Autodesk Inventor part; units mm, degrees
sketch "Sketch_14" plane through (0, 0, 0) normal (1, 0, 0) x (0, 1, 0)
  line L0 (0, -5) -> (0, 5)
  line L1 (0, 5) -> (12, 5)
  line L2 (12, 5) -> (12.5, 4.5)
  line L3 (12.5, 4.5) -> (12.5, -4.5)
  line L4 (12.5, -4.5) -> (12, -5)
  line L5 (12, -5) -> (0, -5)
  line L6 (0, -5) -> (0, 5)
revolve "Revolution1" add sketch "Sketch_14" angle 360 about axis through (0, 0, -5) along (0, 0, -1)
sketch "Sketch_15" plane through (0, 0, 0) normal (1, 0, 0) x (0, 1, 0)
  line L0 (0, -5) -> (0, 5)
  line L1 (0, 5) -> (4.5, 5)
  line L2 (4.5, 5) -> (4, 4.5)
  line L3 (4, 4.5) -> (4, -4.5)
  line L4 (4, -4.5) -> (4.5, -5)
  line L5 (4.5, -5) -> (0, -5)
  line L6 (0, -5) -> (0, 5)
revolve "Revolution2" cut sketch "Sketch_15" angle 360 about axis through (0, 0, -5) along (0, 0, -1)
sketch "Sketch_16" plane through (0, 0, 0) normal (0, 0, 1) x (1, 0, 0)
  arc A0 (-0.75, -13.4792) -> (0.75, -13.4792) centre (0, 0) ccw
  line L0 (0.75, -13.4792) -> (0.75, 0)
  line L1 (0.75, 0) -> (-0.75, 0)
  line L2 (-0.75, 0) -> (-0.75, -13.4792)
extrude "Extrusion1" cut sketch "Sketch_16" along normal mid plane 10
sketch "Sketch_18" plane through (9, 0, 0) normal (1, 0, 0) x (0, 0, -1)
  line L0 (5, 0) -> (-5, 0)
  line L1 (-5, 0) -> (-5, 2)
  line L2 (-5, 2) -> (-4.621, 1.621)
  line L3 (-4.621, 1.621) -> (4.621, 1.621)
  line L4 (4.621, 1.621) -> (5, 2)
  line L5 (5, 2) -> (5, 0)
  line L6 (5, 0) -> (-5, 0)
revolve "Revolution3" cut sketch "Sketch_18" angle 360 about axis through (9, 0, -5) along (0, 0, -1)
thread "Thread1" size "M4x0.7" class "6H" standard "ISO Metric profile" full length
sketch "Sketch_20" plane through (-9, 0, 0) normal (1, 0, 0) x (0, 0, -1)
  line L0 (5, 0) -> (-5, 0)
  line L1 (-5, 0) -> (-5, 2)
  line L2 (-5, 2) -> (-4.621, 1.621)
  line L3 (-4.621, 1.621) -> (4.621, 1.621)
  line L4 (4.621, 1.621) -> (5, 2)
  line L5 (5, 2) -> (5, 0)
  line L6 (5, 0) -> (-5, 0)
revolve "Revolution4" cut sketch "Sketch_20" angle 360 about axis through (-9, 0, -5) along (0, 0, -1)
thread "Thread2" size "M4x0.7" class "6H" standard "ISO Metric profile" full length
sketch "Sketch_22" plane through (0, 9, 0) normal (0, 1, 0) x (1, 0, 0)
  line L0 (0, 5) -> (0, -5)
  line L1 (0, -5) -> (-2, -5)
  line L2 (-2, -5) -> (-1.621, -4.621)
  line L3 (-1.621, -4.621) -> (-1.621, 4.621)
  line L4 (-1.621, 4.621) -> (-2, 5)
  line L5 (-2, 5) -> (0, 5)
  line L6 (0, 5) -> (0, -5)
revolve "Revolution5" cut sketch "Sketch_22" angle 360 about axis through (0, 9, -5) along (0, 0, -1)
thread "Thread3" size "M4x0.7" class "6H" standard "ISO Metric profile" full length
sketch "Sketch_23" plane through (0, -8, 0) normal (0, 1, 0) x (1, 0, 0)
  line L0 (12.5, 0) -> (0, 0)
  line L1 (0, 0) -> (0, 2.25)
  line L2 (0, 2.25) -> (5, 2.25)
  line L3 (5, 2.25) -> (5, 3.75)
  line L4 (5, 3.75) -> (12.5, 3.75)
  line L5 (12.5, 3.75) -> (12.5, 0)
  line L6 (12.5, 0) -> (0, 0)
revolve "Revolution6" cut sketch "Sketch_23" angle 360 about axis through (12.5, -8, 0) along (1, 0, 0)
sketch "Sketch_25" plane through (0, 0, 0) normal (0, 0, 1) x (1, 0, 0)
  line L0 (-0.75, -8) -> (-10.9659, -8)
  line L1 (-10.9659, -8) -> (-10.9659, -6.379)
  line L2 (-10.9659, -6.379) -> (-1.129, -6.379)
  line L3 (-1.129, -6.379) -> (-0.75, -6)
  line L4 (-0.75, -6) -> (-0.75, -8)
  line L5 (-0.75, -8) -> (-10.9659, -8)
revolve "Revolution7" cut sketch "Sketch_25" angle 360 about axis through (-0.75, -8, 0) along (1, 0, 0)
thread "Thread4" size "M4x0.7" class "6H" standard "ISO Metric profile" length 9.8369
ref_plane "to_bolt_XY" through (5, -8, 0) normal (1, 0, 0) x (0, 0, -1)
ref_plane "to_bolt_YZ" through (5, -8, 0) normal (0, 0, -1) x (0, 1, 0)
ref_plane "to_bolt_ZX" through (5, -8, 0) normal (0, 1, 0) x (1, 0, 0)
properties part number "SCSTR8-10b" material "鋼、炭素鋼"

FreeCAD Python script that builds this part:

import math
import FreeCAD as App
import Part
import Sketcher
Q = App.Units.Quantity


def add_polygon(sketch, points):
    """Adds a closed chain of lines whose ends are joined by coincident constraints."""
    first, n = sketch.GeometryCount, len(points)
    for a, b in zip(points, points[1:] + points[:1]):
        sketch.addGeometry(Part.LineSegment(App.Vector(*a, 0), App.Vector(*b, 0)), False)
    for i in range(n):
        sketch.addConstraint(Sketcher.Constraint("Coincident", first + i, 2, first + (i + 1) % n, 1))

doc = App.newDocument("Part")
body = doc.addObject("PartDesign::Body", "Body")

sketch1 = body.newObject("Sketcher::SketchObject", "Sketch")
sketch1.AttachmentSupport = (doc.getObject("YZ_Plane"), [""])
sketch1.MapMode = "FlatFace"
add_polygon(sketch1, [(0, 5), (0, -5), (12, -5), (12.5, -4.5), (12.5, 4.5), (12, 5)])
sketch1.addConstraint(Sketcher.Constraint("Vertical", 0))
sketch1.addConstraint(Sketcher.Constraint("Horizontal", 1))
sketch1.addConstraint(Sketcher.Constraint("Vertical", 3))
sketch1.addConstraint(Sketcher.Constraint("Horizontal", 5))
sketch1.addConstraint(Sketcher.Constraint("Symmetric", 0, 2, 5, 2, -1, 1))
sketch1.addConstraint(Sketcher.Constraint("Perpendicular", 2, 4))
sketch1.addConstraint(Sketcher.Constraint("Vertical", 1, 2, 4, 2))
sketch1.addConstraint(Sketcher.Constraint("Equal", 2, 4))
sketch1.addConstraint(Sketcher.Constraint("DistanceX", 1, 1, 1, 2, 12.0))
sketch1.addConstraint(Sketcher.Constraint("DistanceY", 0, 2, 0, 1, 10.0))
sketch1.addConstraint(Sketcher.Constraint("DistanceY", 3, 1, 3, 2, 9.0))
revolution = body.newObject("PartDesign::Revolution", "Revolution")
revolution.Profile = sketch1
revolution.ReferenceAxis = (sketch1, ["V_Axis"])
revolution.Angle = 360

sketch2 = body.newObject("Sketcher::SketchObject", "Sketch001")
sketch2.AttachmentSupport = (doc.getObject("YZ_Plane"), [""])
sketch2.MapMode = "FlatFace"
add_polygon(sketch2, [(0, 5), (0, -5), (4.5, -5), (4, -4.5), (4, 4.5), (4.5, 5)])
sketch2.addConstraint(Sketcher.Constraint("Vertical", 0))
sketch2.addConstraint(Sketcher.Constraint("Horizontal", 1))
sketch2.addConstraint(Sketcher.Constraint("Vertical", 3))
sketch2.addConstraint(Sketcher.Constraint("Horizontal", 5))
sketch2.addConstraint(Sketcher.Constraint("Symmetric", 0, 2, 5, 2, -1, 1))
sketch2.addConstraint(Sketcher.Constraint("Perpendicular", 2, 4))
sketch2.addConstraint(Sketcher.Constraint("Vertical", 1, 2, 4, 2))
sketch2.addConstraint(Sketcher.Constraint("Equal", 2, 4))
sketch2.addConstraint(Sketcher.Constraint("DistanceY", 0, 2, 0, 1, 10.0))
sketch2.addConstraint(Sketcher.Constraint("DistanceY", 3, 1, 3, 2, 9.0))
sketch2.addConstraint(Sketcher.Constraint("DistanceX", 1, 1, 1, 2, 4.5))
groove = body.newObject("PartDesign::Groove", "Groove")
groove.Profile = sketch2
groove.ReferenceAxis = (sketch2, ["V_Axis"])
groove.Angle = 360

sketch3 = body.newObject("Sketcher::SketchObject", "Sketch002")
sketch3.AttachmentSupport = (doc.getObject("XY_Plane"), [""])
sketch3.MapMode = "FlatFace"
sketch3.addGeometry(Part.LineSegment(App.Vector(-0.8, 0, 0), App.Vector(-0.8, -13.5, 0)), False)
sketch3.addGeometry(Part.ArcOfCircle(Part.Circle(App.Vector(0, 0, 0), App.Vector(0, 0, 1), 13.5), math.radians(-93.18), math.radians(-86.82)), False)
sketch3.addGeometry(Part.LineSegment(App.Vector(0.8, -13.5, 0), App.Vector(0.8, 0, 0)), False)
sketch3.addGeometry(Part.LineSegment(App.Vector(0.8, 0, 0), App.Vector(-0.8, 0, 0)), False)
sketch3.addConstraint(Sketcher.Constraint("Coincident", 0, 2, 1, 1))
sketch3.addConstraint(Sketcher.Constraint("Coincident", 1, 2, 2, 1))
sketch3.addConstraint(Sketcher.Constraint("Coincident", 2, 2, 3, 1))
sketch3.addConstraint(Sketcher.Constraint("Coincident", 3, 2, 0, 1))
sketch3.addConstraint(Sketcher.Constraint("Vertical", 0))
sketch3.addConstraint(Sketcher.Constraint("Vertical", 2))
sketch3.addConstraint(Sketcher.Constraint("Horizontal", 3))
sketch3.addConstraint(Sketcher.Constraint("Coincident", 1, 3, -1, 1))
sketch3.addConstraint(Sketcher.Constraint("Symmetric", 2, 2, 3, 2, -1, 1))
sketch3.addConstraint(Sketcher.Constraint("Radius", 1, 13.5))
sketch3.addConstraint(Sketcher.Constraint("DistanceX", 3, 2, 3, 1, 1.5))
pocket1 = body.newObject("PartDesign::Pocket", "Pocket")
pocket1.Profile = sketch3
pocket1.Length = 10
pocket1.Midplane = True

sketch4 = body.newObject("Sketcher::SketchObject", "Sketch003")
sketch4.AttachmentSupport = (doc.getObject("YZ_Plane"), [""])
sketch4.MapMode = "FlatFace"
sketch4.AttachmentOffset = App.Placement(App.Vector(0, 0, 9), App.Rotation())
add_polygon(sketch4, [(0, 5), (0, -5), (2, -5), (1.6, -4.6), (1.6, 4.6), (2, 5)])
sketch4.addConstraint(Sketcher.Constraint("Vertical", 0))
sketch4.addConstraint(Sketcher.Constraint("Horizontal", 1))
sketch4.addConstraint(Sketcher.Constraint("Vertical", 3))
sketch4.addConstraint(Sketcher.Constraint("Horizontal", 5))
sketch4.addConstraint(Sketcher.Constraint("Symmetric", 0, 2, 5, 2, -1, 1))
sketch4.addConstraint(Sketcher.Constraint("Perpendicular", 2, 4))
sketch4.addConstraint(Sketcher.Constraint("Vertical", 1, 2, 4, 2))
sketch4.addConstraint(Sketcher.Constraint("Equal", 2, 4))
sketch4.addConstraint(Sketcher.Constraint("DistanceX", 1, 1, 1, 2, 2.0))
sketch4.addConstraint(Sketcher.Constraint("DistanceY", 0, 2, 0, 1, 10.0))
sketch4.addConstraint(Sketcher.Constraint("DistanceY", 3, 1, 3, 2, 9.242))
groove2 = body.newObject("PartDesign::Groove", "Groove001")
groove2.Profile = sketch4
groove2.ReferenceAxis = (sketch4, ["V_Axis"])
groove2.Angle = 360

sketch5 = body.newObject("Sketcher::SketchObject", "Sketch004")
sketch5.AttachmentSupport = (doc.getObject("YZ_Plane"), [""])
sketch5.MapMode = "FlatFace"
sketch5.AttachmentOffset = App.Placement(App.Vector(0, 0, -9), App.Rotation())
add_polygon(sketch5, [(0, 5), (0, -5), (2, -5), (1.6, -4.6), (1.6, 4.6), (2, 5)])
sketch5.addConstraint(Sketcher.Constraint("Vertical", 0))
sketch5.addConstraint(Sketcher.Constraint("Horizontal", 1))
sketch5.addConstraint(Sketcher.Constraint("Vertical", 3))
sketch5.addConstraint(Sketcher.Constraint("Horizontal", 5))
sketch5.addConstraint(Sketcher.Constraint("Symmetric", 0, 2, 5, 2, -1, 1))
sketch5.addConstraint(Sketcher.Constraint("Perpendicular", 2, 4))
sketch5.addConstraint(Sketcher.Constraint("Vertical", 1, 2, 4, 2))
sketch5.addConstraint(Sketcher.Constraint("Equal", 2, 4))
sketch5.addConstraint(Sketcher.Constraint("DistanceX", 1, 1, 1, 2, 2.0))
sketch5.addConstraint(Sketcher.Constraint("DistanceY", 0, 2, 0, 1, 10.0))
sketch5.addConstraint(Sketcher.Constraint("DistanceY", 3, 1, 3, 2, 9.242))
groove3 = body.newObject("PartDesign::Groove", "Groove002")
groove3.Profile = sketch5
groove3.ReferenceAxis = (sketch5, ["V_Axis"])
groove3.Angle = 360

sketch6 = body.newObject("Sketcher::SketchObject", "Sketch005")
sketch6.AttachmentSupport = (doc.getObject("XZ_Plane"), [""])
sketch6.MapMode = "FlatFace"
sketch6.AttachmentOffset = App.Placement(App.Vector(0, 0, -9), App.Rotation())
add_polygon(sketch6, [(0, 5), (0, -5), (-2, -5), (-1.6, -4.6), (-1.6, 4.6), (-2, 5)])
sketch6.addConstraint(Sketcher.Constraint("Vertical", 0))
sketch6.addConstraint(Sketcher.Constraint("Horizontal", 1))
sketch6.addConstraint(Sketcher.Constraint("Vertical", 3))
sketch6.addConstraint(Sketcher.Constraint("Horizontal", 5))
sketch6.addConstraint(Sketcher.Constraint("Symmetric", 0, 2, 5, 2, -1, 1))
sketch6.addConstraint(Sketcher.Constraint("Perpendicular", 2, 4))
sketch6.addConstraint(Sketcher.Constraint("Vertical", 1, 2, 4, 2))
sketch6.addConstraint(Sketcher.Constraint("Equal", 2, 4))
sketch6.addConstraint(Sketcher.Constraint("DistanceX", 1, 2, 1, 1, 2.0))
sketch6.addConstraint(Sketcher.Constraint("DistanceY", 0, 2, 0, 1, 10.0))
sketch6.addConstraint(Sketcher.Constraint("DistanceY", 3, 1, 3, 2, 9.242))
groove4 = body.newObject("PartDesign::Groove", "Groove003")
groove4.Profile = sketch6
groove4.ReferenceAxis = (sketch6, ["V_Axis"])
groove4.Angle = 360

sketch7 = body.newObject("Sketcher::SketchObject", "Sketch006")
sketch7.AttachmentSupport = (doc.getObject("XZ_Plane"), [""])
sketch7.MapMode = "FlatFace"
sketch7.AttachmentOffset = App.Placement(App.Vector(0, 0, 8), App.Rotation())
add_polygon(sketch7, [(0, 0), (12.5, 0), (12.5, -3.8), (5, -3.8), (5, -2.2), (0, -2.2)])
sketch7.addConstraint(Sketcher.Constraint("Horizontal", 0))
sketch7.addConstraint(Sketcher.Constraint("Vertical", 1))
sketch7.addConstraint(Sketcher.Constraint("Horizontal", 2))
sketch7.addConstraint(Sketcher.Constraint("Vertical", 3))
sketch7.addConstraint(Sketcher.Constraint("Horizontal", 4))
sketch7.addConstraint(Sketcher.Constraint("Vertical", 5))
sketch7.addConstraint(Sketcher.Constraint("Coincident", 5, 2, -1, 1))
sketch7.addConstraint(Sketcher.Constraint("DistanceX", 4, 2, 4, 1, 5.0))
sketch7.addConstraint(Sketcher.Constraint("DistanceX", 0, 1, 0, 2, 12.5))
sketch7.addConstraint(Sketcher.Constraint("DistanceY", 3, 1, 3, 2, 1.5))
sketch7.addConstraint(Sketcher.Constraint("DistanceY", 1, 2, 1, 1, 3.75))
groove5 = body.newObject("PartDesign::Groove", "Groove004")
groove5.Profile = sketch7
groove5.ReferenceAxis = (sketch7, ["H_Axis"])
groove5.Angle = 360

sketch8 = body.newObject("Sketcher::SketchObject", "Sketch007")
sketch8.AttachmentSupport = (doc.getObject("XY_Plane"), [""])
sketch8.MapMode = "FlatFace"
add_polygon(sketch8, [(-11, -8), (-0.8, -8), (-0.8, -6), (-1.1, -6.4), (-11, -6.4)])
sketch8.addGeometry(Part.LineSegment(App.Vector(-11, -8, 0), App.Vector(-0.8, -8, 0)), True)
sketch8.addConstraint(Sketcher.Constraint("Horizontal", 0))
sketch8.addConstraint(Sketcher.Constraint("Vertical", 1))
sketch8.addConstraint(Sketcher.Constraint("Horizontal", 3))
sketch8.addConstraint(Sketcher.Constraint("Vertical", 4))
sketch8.addConstraint(Sketcher.Constraint("Horizontal", 5))
sketch8.addConstraint(Sketcher.Constraint("Coincident", 5, 1, 4, 2))
sketch8.addConstraint(Sketcher.Constraint("Vertical", 1, 2, 5, 2))
sketch8.addConstraint(Sketcher.Constraint("DistanceY", 1, 1, 1, 2, 2.0))
sketch8.addConstraint(Sketcher.Constraint("Angle", 2, Q("-135 deg")))
sketch8.addConstraint(Sketcher.Constraint("DistanceY", 0, 2, -1, 1, 8.0))
sketch8.addConstraint(Sketcher.Constraint("DistanceX", 0, 1, 0, 2, 10.216))
sketch8.addConstraint(Sketcher.Constraint("DistanceX", 3, 2, 3, 1, 9.837))
sketch8.addConstraint(Sketcher.Constraint("DistanceX", 0, 2, -1, 1, 0.75))
groove6 = body.newObject("PartDesign::Groove", "Groove005")
groove6.Profile = sketch8
groove6.ReferenceAxis = (sketch8, ["Axis0"])
groove6.Angle = 360

doc.recompute()
